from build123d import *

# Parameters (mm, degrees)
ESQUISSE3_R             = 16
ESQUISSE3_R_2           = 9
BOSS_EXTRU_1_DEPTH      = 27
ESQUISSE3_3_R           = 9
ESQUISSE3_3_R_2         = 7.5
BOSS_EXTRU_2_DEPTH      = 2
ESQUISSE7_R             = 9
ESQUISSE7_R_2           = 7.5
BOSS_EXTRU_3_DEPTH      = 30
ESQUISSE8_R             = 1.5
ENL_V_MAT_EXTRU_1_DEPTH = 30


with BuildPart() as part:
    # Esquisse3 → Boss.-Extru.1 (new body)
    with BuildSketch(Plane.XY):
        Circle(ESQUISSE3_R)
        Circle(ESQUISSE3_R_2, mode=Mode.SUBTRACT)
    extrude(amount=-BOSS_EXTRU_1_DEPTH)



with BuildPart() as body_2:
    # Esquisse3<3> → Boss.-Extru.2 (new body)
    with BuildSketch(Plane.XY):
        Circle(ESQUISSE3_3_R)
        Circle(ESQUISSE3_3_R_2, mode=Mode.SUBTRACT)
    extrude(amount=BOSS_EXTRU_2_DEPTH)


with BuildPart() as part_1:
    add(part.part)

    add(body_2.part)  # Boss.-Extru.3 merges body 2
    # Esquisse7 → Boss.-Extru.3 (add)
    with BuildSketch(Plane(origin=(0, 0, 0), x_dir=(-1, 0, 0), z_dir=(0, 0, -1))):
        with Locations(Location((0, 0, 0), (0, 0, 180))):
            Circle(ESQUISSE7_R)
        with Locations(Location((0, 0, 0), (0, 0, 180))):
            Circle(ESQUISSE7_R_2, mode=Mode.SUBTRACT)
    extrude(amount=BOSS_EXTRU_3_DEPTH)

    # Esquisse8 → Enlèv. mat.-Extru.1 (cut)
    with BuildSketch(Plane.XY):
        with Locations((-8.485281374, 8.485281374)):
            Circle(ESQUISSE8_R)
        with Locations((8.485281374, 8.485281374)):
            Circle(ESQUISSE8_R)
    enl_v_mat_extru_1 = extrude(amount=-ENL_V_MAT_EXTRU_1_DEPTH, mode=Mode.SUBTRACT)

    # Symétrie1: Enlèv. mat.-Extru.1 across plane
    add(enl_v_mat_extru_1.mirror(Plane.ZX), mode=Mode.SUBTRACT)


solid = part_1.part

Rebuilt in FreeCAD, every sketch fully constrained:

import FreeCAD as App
import Part
import Sketcher
Q = App.Units.Quantity

doc = App.newDocument("Part")
body = doc.addObject("PartDesign::Body", "Body")

# Sketch on XY plane
sketch1 = body.newObject("Sketcher::SketchObject", "Sketch")
sketch1.AttachmentSupport = (doc.getObject("XY_Plane"), [""])
sketch1.MapMode = "FlatFace"
sketch1.addGeometry([
    Part.Circle(App.Vector(0, 0, 0), App.Vector(0, 0, 1), 16),
    Part.Circle(App.Vector(0, 0, 0), App.Vector(0, 0, 1), 9),
], False)
sketch1.addConstraint([
    Sketcher.Constraint("Coincident", 0, 3, -1, 1),
    Sketcher.Constraint("Coincident", 1, 3, -1, 1),
    Sketcher.Constraint("Diameter", 0, Q("32 mm")),
    Sketcher.Constraint("Diameter", 1, Q("18 mm")),
])
pad1 = body.newObject("PartDesign::Pad", "Pad")
pad1.Profile = sketch1
pad1.Length = 27
pad1.Reversed = True
body2 = doc.addObject("PartDesign::Body", "Body001")

# Sketch on XY plane
sketch2 = body2.newObject("Sketcher::SketchObject", "Sketch001")
sketch2.AttachmentSupport = (doc.getObject("XY_Plane001"), [""])
sketch2.MapMode = "FlatFace"
sketch2.addGeometry([
    Part.Circle(App.Vector(0, 0, 0), App.Vector(0, 0, 1), 9),
    Part.Circle(App.Vector(0, 0, 0), App.Vector(0, 0, 1), 7.5),
], False)
sketch2.addConstraint([
    Sketcher.Constraint("Coincident", 0, 3, -1, 1),
    Sketcher.Constraint("Coincident", 1, 3, -1, 1),
    Sketcher.Constraint("Diameter", 0, Q("18 mm")),
    Sketcher.Constraint("Diameter", 1, Q("15 mm")),
])
pad2 = body2.newObject("PartDesign::Pad", "Pad001")
pad2.Profile = sketch2
pad2.Length = 2
body.AllowCompound = True
doc.recompute()

boolean = body.newObject("PartDesign::Boolean", "Boolean")
boolean.Type = "Fuse"
boolean.addObjects([body2])

# Sketch on XY plane
sketch3 = body.newObject("Sketcher::SketchObject", "Sketch002")
sketch3.AttachmentSupport = (doc.getObject("XY_Plane"), [""])
sketch3.MapMode = "FlatFace"
sketch3.addGeometry([
    Part.Circle(App.Vector(0, 0, 0), App.Vector(0, 0, 1), 9),
    Part.Circle(App.Vector(0, 0, 0), App.Vector(0, 0, 1), 7.5),
], False)
sketch3.addConstraint([
    Sketcher.Constraint("Coincident", 0, 3, -1, 1),
    Sketcher.Constraint("Coincident", 1, 3, -1, 1),
    Sketcher.Constraint("Diameter", 0, Q("18 mm")),
    Sketcher.Constraint("Diameter", 1, Q("15 mm")),
])
pad3 = body.newObject("PartDesign::Pad", "Pad002")
pad3.Profile = sketch3
pad3.Length = 30
pad3.Reversed = True

# Sketch on XY plane
sketch4 = body.newObject("Sketcher::SketchObject", "Sketch003")
sketch4.AttachmentSupport = (doc.getObject("XY_Plane"), [""])
sketch4.MapMode = "FlatFace"
sketch4.addGeometry([
    Part.Circle(App.Vector(-8.485281, 8.485281, 0), App.Vector(0, 0, 1), 1.5),
    Part.Circle(App.Vector(8.485281, 8.485281, 0), App.Vector(0, 0, 1), 1.5),
], False)
sketch4.addConstraint([
    Sketcher.Constraint("Equal", 0, 1),
    Sketcher.Constraint("Symmetric", 0, 3, 1, 3, -2),
    Sketcher.Constraint("Diameter", 0, Q("3 mm")),
    Sketcher.Constraint("DistanceX", 0, 3, -1, 1, Q("8.485281 mm")),
    Sketcher.Constraint("DistanceY", -1, 1, 0, 3, Q("8.485281 mm")),
])
pocket1 = body.newObject("PartDesign::Pocket", "Pocket")
pocket1.Profile = sketch4
pocket1.Length = 30
doc.recompute()

mirrored = body.newObject("PartDesign::Mirrored", "Mirrored")
mirrored.Originals = [pocket1]
mirrored.MirrorPlane = (doc.getObject("XZ_Plane"), [""])
body.Tip = mirrored

doc.recompute()
